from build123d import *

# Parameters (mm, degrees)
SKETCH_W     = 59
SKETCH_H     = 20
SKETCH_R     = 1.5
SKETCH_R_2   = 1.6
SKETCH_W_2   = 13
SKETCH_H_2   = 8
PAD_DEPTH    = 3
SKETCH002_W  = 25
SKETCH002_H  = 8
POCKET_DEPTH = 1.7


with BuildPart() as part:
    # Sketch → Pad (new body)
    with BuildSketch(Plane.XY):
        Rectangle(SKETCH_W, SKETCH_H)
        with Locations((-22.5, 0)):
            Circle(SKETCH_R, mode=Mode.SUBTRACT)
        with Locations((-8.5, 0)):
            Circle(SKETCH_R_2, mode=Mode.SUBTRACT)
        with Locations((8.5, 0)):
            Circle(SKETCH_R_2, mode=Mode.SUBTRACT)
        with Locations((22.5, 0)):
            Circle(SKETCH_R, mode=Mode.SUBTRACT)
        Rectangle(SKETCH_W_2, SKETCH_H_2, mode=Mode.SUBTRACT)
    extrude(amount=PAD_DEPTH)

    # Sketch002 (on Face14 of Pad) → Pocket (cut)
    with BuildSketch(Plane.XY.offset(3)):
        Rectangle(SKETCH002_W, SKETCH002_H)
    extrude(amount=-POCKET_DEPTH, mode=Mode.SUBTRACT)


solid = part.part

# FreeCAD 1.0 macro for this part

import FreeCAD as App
import Part
import Sketcher
from FreeCAD import Vector

doc = App.newDocument("Part")
params = doc.addObject("Spreadsheet::Sheet", "Params")
for row, (alias, value) in enumerate([
    ("sketch1_diameter", "3 mm"),
    ("sketch1_diameter2", "3.2 mm"),
    ("sketch1_width", "59 mm"),
    ("sketch1_width2", "13 mm"),
    ("sketch1_height", "20 mm"),
    ("pad1_length", "3 mm"),
    ("sketch2_width", "25 mm"),
    ("sketch2_height", "8 mm"),
    ("pocket1_length", "1.7 mm"),
], start=1):
    params.set(f"A{row}", alias)
    params.set(f"B{row}", "=" + value)
    params.setAlias(f"B{row}", alias)

body = doc.addObject("PartDesign::Body", "Body")

sketch1 = body.newObject("Sketcher::SketchObject", "Sketch")
sketch1.AttachmentSupport = (doc.getObject("XY_Plane"), [""])
sketch1.MapMode = "FlatFace"
sketch1.addGeometry([
    Part.LineSegment(Vector(-29.5, 10, 0), Vector(-29.5, -10, 0)),
    Part.LineSegment(Vector(-29.5, -10, 0), Vector(29.5, -10, 0)),
    Part.LineSegment(Vector(29.5, -10, 0), Vector(29.5, 10, 0)),
    Part.LineSegment(Vector(29.5, 10, 0), Vector(-29.5, 10, 0)),
    Part.Circle(Vector(-22.5, 0, 0), Vector(0, 0, 1), 1.5),
    Part.Circle(Vector(-8.5, 0, 0), Vector(0, 0, 1), 1.6),
    Part.LineSegment(Vector(6.5, -4, 0), Vector(-6.5, -4, 0)),
    Part.LineSegment(Vector(-6.5, -4, 0), Vector(-6.5, 4, 0)),
    Part.LineSegment(Vector(-6.5, 4, 0), Vector(6.5, 4, 0)),
    Part.LineSegment(Vector(6.5, 4, 0), Vector(6.5, -4, 0)),
    Part.Circle(Vector(8.5, 0, 0), Vector(0, 0, 1), 1.6),
    Part.Circle(Vector(22.5, 0, 0), Vector(0, 0, 1), 1.5),
], False)
sketch1.addConstraint([
    Sketcher.Constraint("Coincident", 0, 2, 1, 1),
    Sketcher.Constraint("Coincident", 1, 2, 2, 1),
    Sketcher.Constraint("Coincident", 2, 2, 3, 1),
    Sketcher.Constraint("Coincident", 3, 2, 0, 1),
    Sketcher.Constraint("Coincident", 6, 2, 7, 1),
    Sketcher.Constraint("Coincident", 7, 2, 8, 1),
    Sketcher.Constraint("Coincident", 8, 2, 9, 1),
    Sketcher.Constraint("Coincident", 9, 2, 6, 1),
    Sketcher.Constraint("Vertical", 0),
    Sketcher.Constraint("Horizontal", 1),
    Sketcher.Constraint("Vertical", 2),
    Sketcher.Constraint("Horizontal", 3),
    Sketcher.Constraint("Horizontal", 6),
    Sketcher.Constraint("Vertical", 7),
    Sketcher.Constraint("Horizontal", 8),
    Sketcher.Constraint("Vertical", 9),
    Sketcher.Constraint("Equal", 5, 10),
    Sketcher.Constraint("Equal", 4, 11),
    Sketcher.Constraint("Symmetric", 5, 3, 10, 3, -1, 1),
    Sketcher.Constraint("Symmetric", 4, 3, 11, 3, -1, 1),
    Sketcher.Constraint("Symmetric", 0, 2, 2, 2, -1, 1),
    Sketcher.Constraint("Symmetric", 6, 2, 8, 2, -1, 1),
    Sketcher.Constraint("PointOnObject", 4, 3, -1),
    Sketcher.Constraint("PointOnObject", 5, 3, -1),
    Sketcher.Constraint("Diameter", 4, 3.0),
    Sketcher.Constraint("Diameter", 5, 3.2),
    Sketcher.Constraint("DistanceX", 1, 1, 1, 2, 59.0),
    Sketcher.Constraint("DistanceX", 6, 2, 6, 1, 13.0),
    Sketcher.Constraint("DistanceY", 0, 2, 0, 1, 20.0),
    Sketcher.Constraint("DistanceY", 7, 1, 7, 2, 8.0),
    Sketcher.Constraint("DistanceX", 4, 3, 5, 3, 14.0),
    Sketcher.Constraint("DistanceX", 5, 3, 10, 3, 17.0),
])
sketch1.setExpression("Constraints[24]", "Params.sketch1_diameter")
sketch1.setExpression("Constraints[25]", "Params.sketch1_diameter2")
sketch1.setExpression("Constraints[26]", "Params.sketch1_width")
sketch1.setExpression("Constraints[27]", "Params.sketch1_width2")
sketch1.setExpression("Constraints[28]", "Params.sketch1_height")
pad1 = body.newObject("PartDesign::Pad", "Pad")
pad1.Profile = sketch1
pad1.setExpression("Length", "Params.pad1_length")

sketch2 = body.newObject("Sketcher::SketchObject", "Sketch001")
sketch2.AttachmentSupport = (doc.getObject("XY_Plane"), [""])
sketch2.MapMode = "FlatFace"
sketch2.AttachmentOffset = App.Placement(Vector(0, 0, 3), App.Rotation())
sketch2.addGeometry([
    Part.LineSegment(Vector(-12, 4, 0), Vector(-12, -4, 0)),
    Part.LineSegment(Vector(-12, -4, 0), Vector(12, -4, 0)),
    Part.LineSegment(Vector(12, -4, 0), Vector(12, 4, 0)),
    Part.LineSegment(Vector(12, 4, 0), Vector(-12, 4, 0)),
], False)
sketch2.addConstraint([
    Sketcher.Constraint("Coincident", 0, 2, 1, 1),
    Sketcher.Constraint("Coincident", 1, 2, 2, 1),
    Sketcher.Constraint("Coincident", 2, 2, 3, 1),
    Sketcher.Constraint("Coincident", 3, 2, 0, 1),
    Sketcher.Constraint("Vertical", 0),
    Sketcher.Constraint("Horizontal", 1),
    Sketcher.Constraint("Vertical", 2),
    Sketcher.Constraint("Horizontal", 3),
    Sketcher.Constraint("Symmetric", 0, 2, 2, 2, -1, 1),
    Sketcher.Constraint("DistanceX", 1, 1, 1, 2, 25.0),
    Sketcher.Constraint("DistanceY", 0, 2, 0, 1, 8.0),
])
sketch2.setExpression("Constraints[9]", "Params.sketch2_width")
sketch2.setExpression("Constraints[10]", "Params.sketch2_height")
pocket1 = body.newObject("PartDesign::Pocket", "Pocket")
pocket1.Profile = sketch2
pocket1.setExpression("Length", "Params.pocket1_length")

doc.recompute()
